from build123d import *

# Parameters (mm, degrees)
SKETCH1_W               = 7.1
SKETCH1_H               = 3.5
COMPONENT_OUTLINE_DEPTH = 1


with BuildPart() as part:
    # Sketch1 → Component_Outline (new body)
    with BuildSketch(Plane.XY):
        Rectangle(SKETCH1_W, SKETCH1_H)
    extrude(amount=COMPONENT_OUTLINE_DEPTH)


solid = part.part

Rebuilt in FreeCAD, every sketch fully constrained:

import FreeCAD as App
import Part
import Sketcher

V = App.Vector


def add_polygon(sketch, points):
    """Adds a closed chain of lines whose ends are joined by coincident constraints."""
    first, n = sketch.GeometryCount, len(points)
    for a, b in zip(points, points[1:] + points[:1]):
        sketch.addGeometry(Part.LineSegment(App.Vector(*a, 0), App.Vector(*b, 0)), False)
    for i in range(n):
        sketch.addConstraint(Sketcher.Constraint("Coincident", first + i, 2, first + (i + 1) % n, 1))

doc = App.newDocument("Part")
params = doc.addObject("Spreadsheet::Sheet", "Params")
for row, (alias, value) in enumerate([
    ("sketch1_width", "7.1 mm"),
    ("sketch1_height", "3.5 mm"),
    ("pad1_length", "1 mm"),
], start=1):
    params.set(f"A{row}", alias)
    params.set(f"B{row}", "=" + value)
    params.setAlias(f"B{row}", alias)

body = doc.addObject("PartDesign::Body", "Body")

sketch1 = body.newObject("Sketcher::SketchObject", "Sketch")
sketch1.AttachmentSupport = (doc.getObject("XY_Plane"), [""])
sketch1.MapMode = "FlatFace"
add_polygon(sketch1, [(-3.5, 1.8), (-3.5, -1.8), (3.5, -1.8), (3.5, 1.8)])
sketch1.addConstraint(Sketcher.Constraint("Vertical", 0))
sketch1.addConstraint(Sketcher.Constraint("Horizontal", 1))
sketch1.addConstraint(Sketcher.Constraint("Vertical", 2))
sketch1.addConstraint(Sketcher.Constraint("Horizontal", 3))
sketch1.addConstraint(Sketcher.Constraint("Symmetric", 0, 2, 2, 2, -1, 1))
sketch1.addConstraint(Sketcher.Constraint("DistanceX", 1, 1, 1, 2, 7.1))
sketch1.addConstraint(Sketcher.Constraint("DistanceY", 0, 2, 0, 1, 3.5))
sketch1.setExpression("Constraints[9]", "Params.sketch1_width")
sketch1.setExpression("Constraints[10]", "Params.sketch1_height")
pad1 = body.newObject("PartDesign::Pad", "Pad")
pad1.Profile = sketch1
pad1.setExpression("Length", "Params.pad1_length")

doc.recompute()
